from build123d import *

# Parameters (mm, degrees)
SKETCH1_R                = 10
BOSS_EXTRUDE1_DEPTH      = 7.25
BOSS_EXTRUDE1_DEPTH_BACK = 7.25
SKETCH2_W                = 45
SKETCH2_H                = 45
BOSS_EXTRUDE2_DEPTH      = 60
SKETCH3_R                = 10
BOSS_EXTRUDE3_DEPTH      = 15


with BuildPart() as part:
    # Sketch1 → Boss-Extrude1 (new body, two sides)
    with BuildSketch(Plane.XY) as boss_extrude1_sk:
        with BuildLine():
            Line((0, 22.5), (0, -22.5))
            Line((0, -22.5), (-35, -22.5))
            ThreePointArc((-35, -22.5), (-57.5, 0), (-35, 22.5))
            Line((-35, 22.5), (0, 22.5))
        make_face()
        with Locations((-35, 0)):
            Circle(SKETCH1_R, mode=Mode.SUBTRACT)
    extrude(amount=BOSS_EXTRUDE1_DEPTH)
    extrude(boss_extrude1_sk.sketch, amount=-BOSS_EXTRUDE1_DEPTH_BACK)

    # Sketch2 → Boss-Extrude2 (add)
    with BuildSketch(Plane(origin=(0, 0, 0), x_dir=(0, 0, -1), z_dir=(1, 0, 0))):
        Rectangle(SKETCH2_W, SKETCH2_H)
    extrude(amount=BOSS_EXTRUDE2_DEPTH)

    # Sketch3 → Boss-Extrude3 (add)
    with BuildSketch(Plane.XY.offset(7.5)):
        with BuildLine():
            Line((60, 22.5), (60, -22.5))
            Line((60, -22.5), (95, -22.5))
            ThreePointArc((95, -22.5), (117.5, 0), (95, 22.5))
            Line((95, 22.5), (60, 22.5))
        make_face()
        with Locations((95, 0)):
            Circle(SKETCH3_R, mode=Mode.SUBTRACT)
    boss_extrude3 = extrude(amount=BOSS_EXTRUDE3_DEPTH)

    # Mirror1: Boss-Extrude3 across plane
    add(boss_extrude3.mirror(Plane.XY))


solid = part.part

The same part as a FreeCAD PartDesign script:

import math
import FreeCAD as App
import Part
import Sketcher
from FreeCAD import Vector


def add_polygon(sketch, points):
    """Adds a closed chain of lines whose ends are joined by coincident constraints."""
    first, n = sketch.GeometryCount, len(points)
    for a, b in zip(points, points[1:] + points[:1]):
        sketch.addGeometry(Part.LineSegment(App.Vector(*a, 0), App.Vector(*b, 0)), False)
    for i in range(n):
        sketch.addConstraint(Sketcher.Constraint("Coincident", first + i, 2, first + (i + 1) % n, 1))

doc = App.newDocument("Part")
body = doc.addObject("PartDesign::Body", "Body")

# Sketch on XY plane
sketch1 = body.newObject("Sketcher::SketchObject", "Sketch")
sketch1.AttachmentSupport = (doc.getObject("XY_Plane"), [""])
sketch1.MapMode = "FlatFace"
sketch1.addGeometry(Part.LineSegment(Vector(0, -22, 0), Vector(0, 22, 0)), False)
sketch1.addGeometry(Part.LineSegment(Vector(0, 22, 0), Vector(-35, 22, 0)), False)
sketch1.addGeometry(Part.ArcOfCircle(Part.Circle(Vector(-35, 0, 0), Vector(0, 0, 1), 22), math.radians(90), math.radians(270)), False)
sketch1.addGeometry(Part.LineSegment(Vector(-35, -22, 0), Vector(0, -22, 0)), False)
sketch1.addGeometry(Part.Circle(Vector(-35, 0, 0), Vector(0, 0, 1), 10), False)
sketch1.addConstraint(Sketcher.Constraint("Coincident", 0, 2, 1, 1))
sketch1.addConstraint(Sketcher.Constraint("Tangent", 1, 2, 2, 1))
sketch1.addConstraint(Sketcher.Constraint("Tangent", 2, 2, 3, 1))
sketch1.addConstraint(Sketcher.Constraint("Coincident", 3, 2, 0, 1))
sketch1.addConstraint(Sketcher.Constraint("Vertical", 0))
sketch1.addConstraint(Sketcher.Constraint("Horizontal", 1))
sketch1.addConstraint(Sketcher.Constraint("Horizontal", 3))
sketch1.addConstraint(Sketcher.Constraint("Coincident", 4, 3, 2, 3))
sketch1.addConstraint(Sketcher.Constraint("Symmetric", 0, 2, 3, 2, -1, 1))
sketch1.addConstraint(Sketcher.Constraint("Diameter", 4, 20.0))
sketch1.addConstraint(Sketcher.Constraint("Radius", 2, 22.5))
sketch1.addConstraint(Sketcher.Constraint("DistanceX", 1, 2, 1, 1, 35.0))
pad1 = body.newObject("PartDesign::Pad", "Pad")
pad1.Profile = sketch1
pad1.Type = "TwoLengths"
pad1.Length = 7.25
pad1.Length2 = 7.25

# Sketch on YZ plane
sketch2 = body.newObject("Sketcher::SketchObject", "Sketch001")
sketch2.AttachmentSupport = (doc.getObject("YZ_Plane"), [""])
sketch2.MapMode = "FlatFace"
add_polygon(sketch2, [(22, 22), (-22, 22), (-22, -22), (22, -22)])  # lines 0-3
sketch2.addConstraint(Sketcher.Constraint("Horizontal", 0))
sketch2.addConstraint(Sketcher.Constraint("Vertical", 1))
sketch2.addConstraint(Sketcher.Constraint("Horizontal", 2))
sketch2.addConstraint(Sketcher.Constraint("Vertical", 3))
sketch2.addConstraint(Sketcher.Constraint("Symmetric", 0, 2, 2, 2, -1, 1))
sketch2.addConstraint(Sketcher.Constraint("Equal", 2, 1))
sketch2.addConstraint(Sketcher.Constraint("DistanceX", 0, 2, 0, 1, 45.0))
pad2 = body.newObject("PartDesign::Pad", "Pad001")
pad2.Profile = sketch2
pad2.Length = 60

# Sketch on XY plane
sketch3 = body.newObject("Sketcher::SketchObject", "Sketch002")
sketch3.AttachmentSupport = (doc.getObject("XY_Plane"), [""])
sketch3.MapMode = "FlatFace"
sketch3.AttachmentOffset = App.Placement(Vector(0, 0, 7.5), App.Rotation())
sketch3.addGeometry(Part.LineSegment(Vector(60, 22, 0), Vector(60, -22, 0)), False)
sketch3.addGeometry(Part.LineSegment(Vector(60, -22, 0), Vector(95, -22, 0)), False)
sketch3.addGeometry(Part.ArcOfCircle(Part.Circle(Vector(95, 0, 0), Vector(0, 0, 1), 22), math.radians(-90), math.radians(90)), False)
sketch3.addGeometry(Part.LineSegment(Vector(95, 22, 0), Vector(60, 22, 0)), False)
sketch3.addGeometry(Part.Circle(Vector(95, 0, 0), Vector(0, 0, 1), 10), False)
sketch3.addConstraint(Sketcher.Constraint("Coincident", 0, 2, 1, 1))
sketch3.addConstraint(Sketcher.Constraint("Tangent", 1, 2, 2, 1))
sketch3.addConstraint(Sketcher.Constraint("Tangent", 2, 2, 3, 1))
sketch3.addConstraint(Sketcher.Constraint("Coincident", 3, 2, 0, 1))
sketch3.addConstraint(Sketcher.Constraint("Vertical", 0))
sketch3.addConstraint(Sketcher.Constraint("Horizontal", 1))
sketch3.addConstraint(Sketcher.Constraint("Horizontal", 3))
sketch3.addConstraint(Sketcher.Constraint("Coincident", 4, 3, 2, 3))
sketch3.addConstraint(Sketcher.Constraint("PointOnObject", 2, 3, -1))
sketch3.addConstraint(Sketcher.Constraint("Diameter", 4, 20.0))
sketch3.addConstraint(Sketcher.Constraint("Radius", 2, 22.5))
sketch3.addConstraint(Sketcher.Constraint("DistanceX", 1, 1, 1, 2, 35.0))
sketch3.addConstraint(Sketcher.Constraint("DistanceX", -1, 1, 2, 3, 95.0))
pad3 = body.newObject("PartDesign::Pad", "Pad002")
pad3.Profile = sketch3
pad3.Length = 15
doc.recompute()

mirrored = body.newObject("PartDesign::Mirrored", "Mirrored")
mirrored.Originals = [pad3]
mirrored.MirrorPlane = (doc.getObject("XY_Plane"), [""])
body.Tip = mirrored

doc.recompute()
